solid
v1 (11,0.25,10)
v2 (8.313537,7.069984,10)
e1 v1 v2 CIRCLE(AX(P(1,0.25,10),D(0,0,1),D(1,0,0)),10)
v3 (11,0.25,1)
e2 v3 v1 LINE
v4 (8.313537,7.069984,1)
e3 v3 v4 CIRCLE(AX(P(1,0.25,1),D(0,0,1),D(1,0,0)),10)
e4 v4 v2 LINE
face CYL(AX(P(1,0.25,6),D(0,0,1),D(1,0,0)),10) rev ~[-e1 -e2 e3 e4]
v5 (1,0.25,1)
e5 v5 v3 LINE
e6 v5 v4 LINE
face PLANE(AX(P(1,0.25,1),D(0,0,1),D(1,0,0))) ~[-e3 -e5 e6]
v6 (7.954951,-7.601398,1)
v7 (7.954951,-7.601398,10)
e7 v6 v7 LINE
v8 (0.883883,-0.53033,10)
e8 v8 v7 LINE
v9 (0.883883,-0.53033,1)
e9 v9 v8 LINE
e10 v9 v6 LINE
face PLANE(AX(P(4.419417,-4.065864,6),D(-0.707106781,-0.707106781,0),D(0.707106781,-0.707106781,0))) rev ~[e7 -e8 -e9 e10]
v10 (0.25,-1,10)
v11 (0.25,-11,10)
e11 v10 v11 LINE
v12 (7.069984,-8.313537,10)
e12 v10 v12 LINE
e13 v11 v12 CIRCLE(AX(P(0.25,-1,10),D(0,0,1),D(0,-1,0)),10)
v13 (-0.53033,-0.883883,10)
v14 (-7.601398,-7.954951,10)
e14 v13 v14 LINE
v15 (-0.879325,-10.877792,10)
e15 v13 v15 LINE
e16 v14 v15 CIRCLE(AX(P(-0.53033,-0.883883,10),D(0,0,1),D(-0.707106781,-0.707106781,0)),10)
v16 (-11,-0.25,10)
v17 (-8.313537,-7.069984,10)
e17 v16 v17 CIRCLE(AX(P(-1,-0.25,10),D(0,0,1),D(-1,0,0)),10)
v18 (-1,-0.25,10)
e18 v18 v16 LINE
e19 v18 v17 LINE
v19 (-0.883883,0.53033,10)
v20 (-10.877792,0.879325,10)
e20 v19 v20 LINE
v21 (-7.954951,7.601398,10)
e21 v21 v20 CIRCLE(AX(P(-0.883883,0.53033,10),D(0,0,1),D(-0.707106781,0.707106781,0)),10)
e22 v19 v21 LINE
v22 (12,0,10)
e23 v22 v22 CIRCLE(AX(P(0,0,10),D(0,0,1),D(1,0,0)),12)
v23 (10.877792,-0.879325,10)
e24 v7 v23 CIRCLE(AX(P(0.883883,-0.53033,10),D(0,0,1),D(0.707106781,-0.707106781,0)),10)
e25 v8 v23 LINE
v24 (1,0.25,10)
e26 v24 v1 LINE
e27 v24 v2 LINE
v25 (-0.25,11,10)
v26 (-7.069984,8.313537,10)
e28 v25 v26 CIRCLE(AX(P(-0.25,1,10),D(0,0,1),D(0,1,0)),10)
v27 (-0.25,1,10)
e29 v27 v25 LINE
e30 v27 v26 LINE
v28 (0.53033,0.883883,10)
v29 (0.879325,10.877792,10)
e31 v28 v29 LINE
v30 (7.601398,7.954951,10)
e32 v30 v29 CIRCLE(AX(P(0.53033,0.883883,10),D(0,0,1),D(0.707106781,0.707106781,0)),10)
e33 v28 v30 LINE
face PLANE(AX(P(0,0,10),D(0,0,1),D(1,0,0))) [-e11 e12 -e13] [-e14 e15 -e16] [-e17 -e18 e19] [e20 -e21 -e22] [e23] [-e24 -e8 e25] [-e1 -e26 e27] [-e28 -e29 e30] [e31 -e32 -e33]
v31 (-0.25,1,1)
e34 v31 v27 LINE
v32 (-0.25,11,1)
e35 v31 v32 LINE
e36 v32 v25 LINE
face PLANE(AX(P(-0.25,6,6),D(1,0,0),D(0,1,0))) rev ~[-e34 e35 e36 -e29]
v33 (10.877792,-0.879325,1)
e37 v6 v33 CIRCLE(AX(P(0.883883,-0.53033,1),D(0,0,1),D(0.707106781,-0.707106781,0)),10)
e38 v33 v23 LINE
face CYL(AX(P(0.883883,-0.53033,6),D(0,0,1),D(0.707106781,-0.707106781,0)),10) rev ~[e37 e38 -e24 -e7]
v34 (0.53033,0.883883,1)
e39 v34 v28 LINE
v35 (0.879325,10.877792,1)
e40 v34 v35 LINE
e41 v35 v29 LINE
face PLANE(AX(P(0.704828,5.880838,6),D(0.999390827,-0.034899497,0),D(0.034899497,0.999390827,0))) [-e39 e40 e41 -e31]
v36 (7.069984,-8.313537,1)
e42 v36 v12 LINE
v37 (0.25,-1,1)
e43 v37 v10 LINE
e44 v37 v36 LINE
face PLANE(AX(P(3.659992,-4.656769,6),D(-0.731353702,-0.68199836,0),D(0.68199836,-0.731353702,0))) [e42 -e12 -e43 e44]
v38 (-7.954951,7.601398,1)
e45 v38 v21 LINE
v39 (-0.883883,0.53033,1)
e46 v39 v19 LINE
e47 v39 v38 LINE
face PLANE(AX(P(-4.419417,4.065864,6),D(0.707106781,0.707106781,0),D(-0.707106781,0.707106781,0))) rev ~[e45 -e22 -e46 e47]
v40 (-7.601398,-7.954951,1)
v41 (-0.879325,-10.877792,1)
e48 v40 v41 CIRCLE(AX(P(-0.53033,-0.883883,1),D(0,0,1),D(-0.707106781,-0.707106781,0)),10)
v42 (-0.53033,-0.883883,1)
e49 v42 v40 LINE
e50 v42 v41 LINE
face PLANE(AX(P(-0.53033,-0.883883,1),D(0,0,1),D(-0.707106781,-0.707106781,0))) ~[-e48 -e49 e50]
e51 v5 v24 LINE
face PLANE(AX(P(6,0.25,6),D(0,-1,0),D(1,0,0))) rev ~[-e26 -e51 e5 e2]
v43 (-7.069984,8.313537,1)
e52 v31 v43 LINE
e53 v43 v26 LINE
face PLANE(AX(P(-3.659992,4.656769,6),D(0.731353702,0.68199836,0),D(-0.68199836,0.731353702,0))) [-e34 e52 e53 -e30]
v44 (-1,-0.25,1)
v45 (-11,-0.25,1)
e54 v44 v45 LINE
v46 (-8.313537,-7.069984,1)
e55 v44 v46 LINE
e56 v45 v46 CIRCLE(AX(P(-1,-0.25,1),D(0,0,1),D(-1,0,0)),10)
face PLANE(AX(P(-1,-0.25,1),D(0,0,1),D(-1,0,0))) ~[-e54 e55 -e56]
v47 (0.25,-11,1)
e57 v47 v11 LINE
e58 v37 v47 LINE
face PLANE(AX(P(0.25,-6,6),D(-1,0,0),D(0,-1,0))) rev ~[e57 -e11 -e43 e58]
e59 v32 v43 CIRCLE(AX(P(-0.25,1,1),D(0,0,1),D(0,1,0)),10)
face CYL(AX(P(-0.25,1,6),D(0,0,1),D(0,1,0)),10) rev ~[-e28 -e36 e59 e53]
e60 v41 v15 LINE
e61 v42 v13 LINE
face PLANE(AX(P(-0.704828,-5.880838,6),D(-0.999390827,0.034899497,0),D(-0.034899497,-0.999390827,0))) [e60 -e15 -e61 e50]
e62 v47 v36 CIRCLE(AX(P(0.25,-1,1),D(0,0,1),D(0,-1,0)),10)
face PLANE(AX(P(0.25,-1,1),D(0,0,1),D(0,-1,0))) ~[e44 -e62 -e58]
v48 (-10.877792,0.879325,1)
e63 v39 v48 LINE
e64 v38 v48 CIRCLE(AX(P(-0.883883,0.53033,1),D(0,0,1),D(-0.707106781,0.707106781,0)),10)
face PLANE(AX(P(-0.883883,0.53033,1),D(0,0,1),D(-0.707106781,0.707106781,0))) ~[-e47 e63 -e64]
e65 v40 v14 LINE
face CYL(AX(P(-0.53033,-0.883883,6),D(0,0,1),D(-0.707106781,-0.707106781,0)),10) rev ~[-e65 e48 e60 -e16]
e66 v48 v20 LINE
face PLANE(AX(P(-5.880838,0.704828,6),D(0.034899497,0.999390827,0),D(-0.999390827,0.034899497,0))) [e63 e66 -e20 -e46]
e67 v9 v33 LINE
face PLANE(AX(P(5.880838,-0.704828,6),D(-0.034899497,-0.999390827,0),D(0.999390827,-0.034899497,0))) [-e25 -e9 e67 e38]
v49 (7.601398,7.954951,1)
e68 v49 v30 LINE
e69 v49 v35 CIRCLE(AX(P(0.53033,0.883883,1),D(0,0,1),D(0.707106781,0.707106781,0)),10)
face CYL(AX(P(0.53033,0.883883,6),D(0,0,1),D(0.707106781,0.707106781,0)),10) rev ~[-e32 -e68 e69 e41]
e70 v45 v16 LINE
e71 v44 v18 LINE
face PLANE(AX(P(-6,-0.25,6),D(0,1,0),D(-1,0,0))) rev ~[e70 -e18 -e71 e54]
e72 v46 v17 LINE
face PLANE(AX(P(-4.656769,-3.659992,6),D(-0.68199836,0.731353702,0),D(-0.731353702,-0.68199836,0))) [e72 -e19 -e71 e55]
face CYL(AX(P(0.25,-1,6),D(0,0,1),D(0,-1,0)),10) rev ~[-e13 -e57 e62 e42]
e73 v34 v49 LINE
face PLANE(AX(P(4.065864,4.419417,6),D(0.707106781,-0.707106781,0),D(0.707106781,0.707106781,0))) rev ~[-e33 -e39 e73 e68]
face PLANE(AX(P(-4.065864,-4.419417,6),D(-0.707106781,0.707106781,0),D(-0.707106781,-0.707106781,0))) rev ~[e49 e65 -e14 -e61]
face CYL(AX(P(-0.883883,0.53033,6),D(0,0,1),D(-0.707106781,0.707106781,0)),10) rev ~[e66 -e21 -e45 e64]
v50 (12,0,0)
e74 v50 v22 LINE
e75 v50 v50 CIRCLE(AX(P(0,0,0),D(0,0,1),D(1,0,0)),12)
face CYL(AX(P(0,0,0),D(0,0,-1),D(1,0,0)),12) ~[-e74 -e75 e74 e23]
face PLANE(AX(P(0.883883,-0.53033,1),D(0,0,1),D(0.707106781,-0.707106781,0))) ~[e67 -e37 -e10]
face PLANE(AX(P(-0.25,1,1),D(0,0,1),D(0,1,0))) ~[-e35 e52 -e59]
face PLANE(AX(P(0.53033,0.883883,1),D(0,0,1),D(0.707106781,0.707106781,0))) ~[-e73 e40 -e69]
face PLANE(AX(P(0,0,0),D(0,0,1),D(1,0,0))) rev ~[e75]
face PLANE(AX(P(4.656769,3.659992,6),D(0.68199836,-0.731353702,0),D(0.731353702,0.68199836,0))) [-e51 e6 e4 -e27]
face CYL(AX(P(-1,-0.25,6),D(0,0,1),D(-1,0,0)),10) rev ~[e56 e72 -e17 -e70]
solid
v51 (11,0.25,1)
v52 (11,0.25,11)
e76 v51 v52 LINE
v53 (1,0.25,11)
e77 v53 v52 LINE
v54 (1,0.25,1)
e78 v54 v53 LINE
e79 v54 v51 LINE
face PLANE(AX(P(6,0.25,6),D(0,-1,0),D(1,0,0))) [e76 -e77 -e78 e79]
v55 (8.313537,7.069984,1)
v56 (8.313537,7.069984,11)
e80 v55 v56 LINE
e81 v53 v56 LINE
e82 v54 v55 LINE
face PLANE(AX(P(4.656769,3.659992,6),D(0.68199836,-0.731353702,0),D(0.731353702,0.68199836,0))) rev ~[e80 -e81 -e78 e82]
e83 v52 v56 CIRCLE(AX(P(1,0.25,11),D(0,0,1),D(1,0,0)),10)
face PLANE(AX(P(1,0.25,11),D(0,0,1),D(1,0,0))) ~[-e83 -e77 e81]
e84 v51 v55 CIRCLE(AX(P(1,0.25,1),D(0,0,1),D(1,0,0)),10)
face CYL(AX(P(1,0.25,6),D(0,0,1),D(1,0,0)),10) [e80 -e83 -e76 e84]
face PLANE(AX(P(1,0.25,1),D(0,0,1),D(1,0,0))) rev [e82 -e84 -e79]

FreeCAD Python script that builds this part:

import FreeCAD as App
import Part
import Sketcher
Q = App.Units.Quantity


def add_polygon(sketch, points):
    """Adds a closed chain of lines whose ends are joined by coincident constraints."""
    first, n = sketch.GeometryCount, len(points)
    for a, b in zip(points, points[1:] + points[:1]):
        sketch.addGeometry(Part.LineSegment(App.Vector(*a, 0), App.Vector(*b, 0)), False)
    for i in range(n):
        sketch.addConstraint(Sketcher.Constraint("Coincident", first + i, 2, first + (i + 1) % n, 1))

doc = App.newDocument("Part")
params = doc.addObject("Spreadsheet::Sheet", "Params")
for row, (alias, value) in enumerate([
    ("sketch1_width", "10 mm"),
    ("revolution_angle", "43 deg"),
    ("sketch2_diameter", "24 mm"),
    ("pad1_length", "10 mm"),
    ("sketch3_width", "10 mm"),
    ("revolution2_angle", "43 deg"),
], start=1):
    params.set(f"A{row}", alias)
    params.set(f"B{row}", "=" + value)
    params.setAlias(f"B{row}", alias)

body = doc.addObject("PartDesign::Body", "Body")

sketch1 = body.newObject("Sketcher::SketchObject", "Sketch")
sketch1.AttachmentSupport = (doc.getObject("XZ_Plane"), [""])
sketch1.MapMode = "FlatFace"
sketch1.AttachmentOffset = App.Placement(App.Vector(0, 0, -0.25), App.Rotation())
add_polygon(sketch1, [(1, 11), (1, 1), (11, 1), (11, 11)])
sketch1.addGeometry(Part.LineSegment(App.Vector(1, 1, 0), App.Vector(1, 11, 0)), True)
sketch1.addConstraint(Sketcher.Constraint("Vertical", 0))
sketch1.addConstraint(Sketcher.Constraint("Horizontal", 1))
sketch1.addConstraint(Sketcher.Constraint("Vertical", 2))
sketch1.addConstraint(Sketcher.Constraint("Horizontal", 3))
sketch1.addConstraint(Sketcher.Constraint("Vertical", 4))
sketch1.addConstraint(Sketcher.Constraint("Coincident", 4, 1, 0, 2))
sketch1.addConstraint(Sketcher.Constraint("Horizontal", 2, 2, 4, 2))
sketch1.addConstraint(Sketcher.Constraint("Equal", 3, 0))
sketch1.addConstraint(Sketcher.Constraint("DistanceX", 1, 1, 1, 2, Q("10 mm")))
sketch1.addConstraint(Sketcher.Constraint("DistanceX", -1, 1, 0, 2, Q("1 mm")))
sketch1.addConstraint(Sketcher.Constraint("DistanceY", -1, 1, 0, 2, Q("1 mm")))
sketch1.setExpression("Constraints[12]", "Params.sketch1_width")
revolution = body.newObject("PartDesign::Revolution", "Revolution")
revolution.Profile = sketch1
revolution.ReferenceAxis = (sketch1, ["Axis0"])
revolution.setExpression("Angle", "Params.revolution_angle")
body2 = doc.addObject("PartDesign::Body", "Body001")
body2.AllowCompound = True
doc.recompute()

body2.BaseFeature = body
doc.recompute()

body3 = doc.addObject("PartDesign::Body", "Body002")
body3.BaseFeature = body
body3.Placement = App.Placement(App.Vector(0, 0, 0), App.Rotation(App.Vector(0, 0, 1), 45))
boolean = body2.newObject("PartDesign::Boolean", "Boolean")
boolean.Type = "Fuse"
boolean.addObjects([body3])
doc.recompute()

body4 = doc.addObject("PartDesign::Body", "Body003")
body4.BaseFeature = body
body4.Placement = App.Placement(App.Vector(0, 0, 0), App.Rotation(App.Vector(0, 0, 1), 90))
boolean2 = body2.newObject("PartDesign::Boolean", "Boolean001")
boolean2.Type = "Fuse"
boolean2.addObjects([body4])
doc.recompute()

body5 = doc.addObject("PartDesign::Body", "Body004")
body5.BaseFeature = body
body5.Placement = App.Placement(App.Vector(0, 0, 0), App.Rotation(App.Vector(0, 0, 1), 135))
boolean3 = body2.newObject("PartDesign::Boolean", "Boolean002")
boolean3.Type = "Fuse"
boolean3.addObjects([body5])
doc.recompute()

body6 = doc.addObject("PartDesign::Body", "Body005")
body6.BaseFeature = body
body6.Placement = App.Placement(App.Vector(0, 0, 0), App.Rotation(App.Vector(0, 0, 1), 180))
boolean4 = body2.newObject("PartDesign::Boolean", "Boolean003")
boolean4.Type = "Fuse"
boolean4.addObjects([body6])
doc.recompute()

body7 = doc.addObject("PartDesign::Body", "Body006")
body7.BaseFeature = body
body7.Placement = App.Placement(App.Vector(0, 0, 0), App.Rotation(App.Vector(0, 0, 1), 225))
boolean5 = body2.newObject("PartDesign::Boolean", "Boolean004")
boolean5.Type = "Fuse"
boolean5.addObjects([body7])
doc.recompute()

body8 = doc.addObject("PartDesign::Body", "Body007")
body8.BaseFeature = body
body8.Placement = App.Placement(App.Vector(0, 0, 0), App.Rotation(App.Vector(0, 0, 1), 270))
boolean6 = body2.newObject("PartDesign::Boolean", "Boolean005")
boolean6.Type = "Fuse"
boolean6.addObjects([body8])
doc.recompute()

body.Placement = App.Placement(App.Vector(0, 0, 0), App.Rotation(App.Vector(0, 0, 1), 315))
boolean7 = body2.newObject("PartDesign::Boolean", "Boolean006")
boolean7.Type = "Fuse"
boolean7.addObjects([body])
body9 = doc.addObject("PartDesign::Body", "Body008")

sketch2 = body9.newObject("Sketcher::SketchObject", "Sketch001")
sketch2.AttachmentSupport = (doc.getObject("XY_Plane008"), [""])
sketch2.MapMode = "FlatFace"
sketch2.addGeometry(Part.Circle(App.Vector(0, 0, 0), App.Vector(0, 0, 1), 12), False)
sketch2.addConstraint(Sketcher.Constraint("Coincident", 0, 3, -1, 1))
sketch2.addConstraint(Sketcher.Constraint("Diameter", 0, Q("24 mm")))
sketch2.setExpression("Constraints[1]", "Params.sketch2_diameter")
pad1 = body9.newObject("PartDesign::Pad", "Pad")
pad1.Profile = sketch2
pad1.setExpression("Length", "Params.pad1_length")
doc.recompute()

boolean8 = body9.newObject("PartDesign::Boolean", "Boolean007")
boolean8.Type = "Cut"
boolean8.addObjects([body2])
body10 = doc.addObject("PartDesign::Body", "Body009")

sketch3 = body10.newObject("Sketcher::SketchObject", "Sketch002")
sketch3.AttachmentSupport = (doc.getObject("XZ_Plane009"), [""])
sketch3.MapMode = "FlatFace"
sketch3.AttachmentOffset = App.Placement(App.Vector(0, 0, -0.25), App.Rotation())
add_polygon(sketch3, [(1, 11), (1, 1), (11, 1), (11, 11)])
sketch3.addGeometry(Part.LineSegment(App.Vector(1, 1, 0), App.Vector(1, 11, 0)), True)
sketch3.addConstraint(Sketcher.Constraint("Vertical", 0))
sketch3.addConstraint(Sketcher.Constraint("Horizontal", 1))
sketch3.addConstraint(Sketcher.Constraint("Vertical", 2))
sketch3.addConstraint(Sketcher.Constraint("Horizontal", 3))
sketch3.addConstraint(Sketcher.Constraint("Vertical", 4))
sketch3.addConstraint(Sketcher.Constraint("Coincident", 4, 1, 0, 2))
sketch3.addConstraint(Sketcher.Constraint("Horizontal", 2, 2, 4, 2))
sketch3.addConstraint(Sketcher.Constraint("Equal", 3, 0))
sketch3.addConstraint(Sketcher.Constraint("DistanceX", 1, 1, 1, 2, Q("10 mm")))
sketch3.addConstraint(Sketcher.Constraint("DistanceX", -1, 1, 0, 2, Q("1 mm")))
sketch3.addConstraint(Sketcher.Constraint("DistanceY", -1, 1, 0, 2, Q("1 mm")))
sketch3.setExpression("Constraints[12]", "Params.sketch3_width")
revolution2 = body10.newObject("PartDesign::Revolution", "Revolution001")
revolution2.Profile = sketch3
revolution2.ReferenceAxis = (sketch3, ["Axis0"])
revolution2.setExpression("Angle", "Params.revolution2_angle")

doc.recompute()
